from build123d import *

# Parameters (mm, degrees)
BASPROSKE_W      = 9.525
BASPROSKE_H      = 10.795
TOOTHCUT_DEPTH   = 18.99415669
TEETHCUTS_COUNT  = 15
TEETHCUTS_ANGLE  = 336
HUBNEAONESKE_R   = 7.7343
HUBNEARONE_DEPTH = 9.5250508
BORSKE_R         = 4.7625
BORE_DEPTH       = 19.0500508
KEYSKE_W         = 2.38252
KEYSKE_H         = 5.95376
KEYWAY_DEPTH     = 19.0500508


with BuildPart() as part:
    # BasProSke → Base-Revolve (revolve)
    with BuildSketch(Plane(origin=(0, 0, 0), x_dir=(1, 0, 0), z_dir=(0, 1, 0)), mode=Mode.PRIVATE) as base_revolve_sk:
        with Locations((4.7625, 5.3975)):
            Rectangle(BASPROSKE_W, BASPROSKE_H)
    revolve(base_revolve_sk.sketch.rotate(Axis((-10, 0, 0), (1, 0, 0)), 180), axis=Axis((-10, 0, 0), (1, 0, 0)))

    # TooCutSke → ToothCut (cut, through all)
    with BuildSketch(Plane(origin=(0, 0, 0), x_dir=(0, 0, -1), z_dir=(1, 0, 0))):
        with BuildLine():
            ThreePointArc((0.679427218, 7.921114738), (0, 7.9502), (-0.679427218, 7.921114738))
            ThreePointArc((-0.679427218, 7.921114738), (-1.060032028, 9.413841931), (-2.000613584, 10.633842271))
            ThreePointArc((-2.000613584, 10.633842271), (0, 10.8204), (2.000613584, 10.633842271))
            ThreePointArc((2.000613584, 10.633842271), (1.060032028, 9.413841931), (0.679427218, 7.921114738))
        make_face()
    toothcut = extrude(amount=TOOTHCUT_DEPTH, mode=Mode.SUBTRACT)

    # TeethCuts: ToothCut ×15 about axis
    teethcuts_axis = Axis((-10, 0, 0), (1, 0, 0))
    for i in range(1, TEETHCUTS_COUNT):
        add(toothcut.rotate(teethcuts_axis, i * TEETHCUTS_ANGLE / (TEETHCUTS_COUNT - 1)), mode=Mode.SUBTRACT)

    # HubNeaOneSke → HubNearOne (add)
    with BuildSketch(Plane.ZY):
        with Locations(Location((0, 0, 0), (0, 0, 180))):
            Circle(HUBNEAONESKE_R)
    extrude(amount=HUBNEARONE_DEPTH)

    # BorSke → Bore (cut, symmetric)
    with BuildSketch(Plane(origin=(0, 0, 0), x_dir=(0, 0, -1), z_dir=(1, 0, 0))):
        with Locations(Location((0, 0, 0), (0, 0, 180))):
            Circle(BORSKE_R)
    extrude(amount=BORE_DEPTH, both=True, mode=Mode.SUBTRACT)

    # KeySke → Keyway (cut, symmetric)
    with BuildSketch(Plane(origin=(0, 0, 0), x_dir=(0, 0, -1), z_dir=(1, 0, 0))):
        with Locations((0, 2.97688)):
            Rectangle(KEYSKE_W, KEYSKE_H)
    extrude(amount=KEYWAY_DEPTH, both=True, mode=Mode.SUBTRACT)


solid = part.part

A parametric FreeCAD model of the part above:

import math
import FreeCAD as App
import Part
import Sketcher
from FreeCAD import Vector
Q = App.Units.Quantity

doc = App.newDocument("Part")
body = doc.addObject("PartDesign::Body", "Body")

# Sketch on XZ plane
sketch1 = body.newObject("Sketcher::SketchObject", "Sketch")
sketch1.AttachmentSupport = (doc.getObject("XZ_Plane"), [""])
sketch1.MapMode = "FlatFace"
sketch1.addGeometry([
    Part.LineSegment(Vector(0, -11, 0), Vector(0, 0, 0)),
    Part.LineSegment(Vector(0, 0, 0), Vector(10, 0, 0)),
    Part.LineSegment(Vector(10, 0, 0), Vector(10, -11, 0)),
    Part.LineSegment(Vector(10, -11, 0), Vector(0, -11, 0)),
], False)
sketch1.addConstraint([
    Sketcher.Constraint("Coincident", 0, 2, 1, 1),
    Sketcher.Constraint("Coincident", 1, 2, 2, 1),
    Sketcher.Constraint("Coincident", 2, 2, 3, 1),
    Sketcher.Constraint("Coincident", 3, 2, 0, 1),
    Sketcher.Constraint("Vertical", 0),
    Sketcher.Constraint("Horizontal", 1),
    Sketcher.Constraint("Vertical", 2),
    Sketcher.Constraint("Horizontal", 3),
    Sketcher.Constraint("Coincident", 0, 2, -1, 1),
    Sketcher.Constraint("DistanceX", 1, 1, 1, 2, Q("0.375 in")),
    Sketcher.Constraint("DistanceY", 0, 1, 0, 2, Q("0.425 in")),
])
revolution = body.newObject("PartDesign::Revolution", "Revolution")
revolution.Profile = sketch1
revolution.ReferenceAxis = (sketch1, ["H_Axis"])
revolution.Angle = 360

# Sketch on YZ plane
sketch2 = body.newObject("Sketcher::SketchObject", "Sketch001")
sketch2.AttachmentSupport = (doc.getObject("YZ_Plane"), [""])
sketch2.MapMode = "FlatFace"
sketch2.addGeometry([
    Part.ArcOfCircle(Part.Circle(Vector(0, 0, 0), Vector(0, 0, 1), 8), math.radians(-4.9), math.radians(4.9)),
    Part.ArcOfCircle(Part.Circle(Vector(7.7, -4.5, 0), Vector(0, 0, 1), 3.8), math.radians(41), math.radians(87)),
    Part.ArcOfCircle(Part.Circle(Vector(0, 0, 0), Vector(0, 0, 1), 10.8), math.radians(-11), math.radians(11)),
    Part.ArcOfCircle(Part.Circle(Vector(7.7, 4.5, 0), Vector(0, 0, 1), 3.8), math.radians(-87), math.radians(-41)),
], False)
sketch2.addConstraint([
    Sketcher.Constraint("Coincident", 0, 1, 1, 2),
    Sketcher.Constraint("Coincident", 1, 1, 2, 1),
    Sketcher.Constraint("Coincident", 2, 2, 3, 2),
    Sketcher.Constraint("Coincident", 3, 1, 0, 2),
    Sketcher.Constraint("Coincident", 0, 3, -1, 1),
    Sketcher.Constraint("Coincident", 2, 3, -1, 1),
    Sketcher.Constraint("Equal", 1, 3),
    Sketcher.Constraint("Symmetric", 1, 3, 3, 3, -1),
    Sketcher.Constraint("Radius", 1, Q("0.15 in")),
    Sketcher.Constraint("Radius", 0, Q("0.313 in")),
    Sketcher.Constraint("Radius", 2, Q("0.426 in")),
    Sketcher.Constraint("DistanceY", 1, 3, -1, 1, Q("4.485382 mm")),
    Sketcher.Constraint("DistanceX", 1, 3, 0, 1, Q("0.175529 mm")),
])
pocket1 = body.newObject("PartDesign::Pocket", "Pocket")
pocket1.Profile = sketch2
pocket1.Type = "ThroughAll"
pocket1.Reversed = True
doc.recompute()

polarpattern = body.newObject("PartDesign::PolarPattern", "PolarPattern")
polarpattern.Originals = [pocket1]
polarpattern.Axis = (doc.getObject("X_Axis"), [""])
polarpattern.Angle = 360
polarpattern.Occurrences = 15
body.Tip = polarpattern

# Sketch on YZ plane
sketch3 = body.newObject("Sketcher::SketchObject", "Sketch002")
sketch3.AttachmentSupport = (doc.getObject("YZ_Plane"), [""])
sketch3.MapMode = "FlatFace"
sketch3.addGeometry(Part.Circle(Vector(0, 0, 0), Vector(0, 0, 1), 8), False)
sketch3.addConstraint([
    Sketcher.Constraint("Coincident", 0, 3, -1, 1),
    Sketcher.Constraint("Diameter", 0, Q("0.609 in")),
])
pad1 = body.newObject("PartDesign::Pad", "Pad")
pad1.Profile = sketch3
pad1.Length = 9.525051
pad1.Reversed = True

# Sketch on YZ plane
sketch4 = body.newObject("Sketcher::SketchObject", "Sketch003")
sketch4.AttachmentSupport = (doc.getObject("YZ_Plane"), [""])
sketch4.MapMode = "FlatFace"
sketch4.addGeometry(Part.Circle(Vector(0, 0, 0), Vector(0, 0, 1), 4.8), False)
sketch4.addConstraint([
    Sketcher.Constraint("Coincident", 0, 3, -1, 1),
    Sketcher.Constraint("Diameter", 0, Q("0.375 in")),
])
pocket2 = body.newObject("PartDesign::Pocket", "Pocket001")
pocket2.Profile = sketch4
pocket2.Length = 38.100102
pocket2.Midplane = True

# Sketch on YZ plane
sketch5 = body.newObject("Sketcher::SketchObject", "Sketch004")
sketch5.AttachmentSupport = (doc.getObject("YZ_Plane"), [""])
sketch5.MapMode = "FlatFace"
sketch5.addGeometry([
    Part.LineSegment(Vector(6, 1.2, 0), Vector(0, 1.2, 0)),
    Part.LineSegment(Vector(0, 1.2, 0), Vector(0, -1.2, 0)),
    Part.LineSegment(Vector(0, -1.2, 0), Vector(6, -1.2, 0)),
    Part.LineSegment(Vector(6, -1.2, 0), Vector(6, 1.2, 0)),
], False)
sketch5.addConstraint([
    Sketcher.Constraint("Coincident", 0, 2, 1, 1),
    Sketcher.Constraint("Coincident", 1, 2, 2, 1),
    Sketcher.Constraint("Coincident", 2, 2, 3, 1),
    Sketcher.Constraint("Coincident", 3, 2, 0, 1),
    Sketcher.Constraint("Horizontal", 0),
    Sketcher.Constraint("Vertical", 1),
    Sketcher.Constraint("Horizontal", 2),
    Sketcher.Constraint("Vertical", 3),
    Sketcher.Constraint("Symmetric", 0, 2, 1, 2, -1, 1),
    Sketcher.Constraint("DistanceX", 0, 2, 0, 1, Q("0.2344 in")),
    Sketcher.Constraint("DistanceY", 1, 2, 1, 1, Q("0.0938 in")),
])
pocket3 = body.newObject("PartDesign::Pocket", "Pocket002")
pocket3.Profile = sketch5
pocket3.Length = 38.100102
pocket3.Midplane = True

doc.recompute()
